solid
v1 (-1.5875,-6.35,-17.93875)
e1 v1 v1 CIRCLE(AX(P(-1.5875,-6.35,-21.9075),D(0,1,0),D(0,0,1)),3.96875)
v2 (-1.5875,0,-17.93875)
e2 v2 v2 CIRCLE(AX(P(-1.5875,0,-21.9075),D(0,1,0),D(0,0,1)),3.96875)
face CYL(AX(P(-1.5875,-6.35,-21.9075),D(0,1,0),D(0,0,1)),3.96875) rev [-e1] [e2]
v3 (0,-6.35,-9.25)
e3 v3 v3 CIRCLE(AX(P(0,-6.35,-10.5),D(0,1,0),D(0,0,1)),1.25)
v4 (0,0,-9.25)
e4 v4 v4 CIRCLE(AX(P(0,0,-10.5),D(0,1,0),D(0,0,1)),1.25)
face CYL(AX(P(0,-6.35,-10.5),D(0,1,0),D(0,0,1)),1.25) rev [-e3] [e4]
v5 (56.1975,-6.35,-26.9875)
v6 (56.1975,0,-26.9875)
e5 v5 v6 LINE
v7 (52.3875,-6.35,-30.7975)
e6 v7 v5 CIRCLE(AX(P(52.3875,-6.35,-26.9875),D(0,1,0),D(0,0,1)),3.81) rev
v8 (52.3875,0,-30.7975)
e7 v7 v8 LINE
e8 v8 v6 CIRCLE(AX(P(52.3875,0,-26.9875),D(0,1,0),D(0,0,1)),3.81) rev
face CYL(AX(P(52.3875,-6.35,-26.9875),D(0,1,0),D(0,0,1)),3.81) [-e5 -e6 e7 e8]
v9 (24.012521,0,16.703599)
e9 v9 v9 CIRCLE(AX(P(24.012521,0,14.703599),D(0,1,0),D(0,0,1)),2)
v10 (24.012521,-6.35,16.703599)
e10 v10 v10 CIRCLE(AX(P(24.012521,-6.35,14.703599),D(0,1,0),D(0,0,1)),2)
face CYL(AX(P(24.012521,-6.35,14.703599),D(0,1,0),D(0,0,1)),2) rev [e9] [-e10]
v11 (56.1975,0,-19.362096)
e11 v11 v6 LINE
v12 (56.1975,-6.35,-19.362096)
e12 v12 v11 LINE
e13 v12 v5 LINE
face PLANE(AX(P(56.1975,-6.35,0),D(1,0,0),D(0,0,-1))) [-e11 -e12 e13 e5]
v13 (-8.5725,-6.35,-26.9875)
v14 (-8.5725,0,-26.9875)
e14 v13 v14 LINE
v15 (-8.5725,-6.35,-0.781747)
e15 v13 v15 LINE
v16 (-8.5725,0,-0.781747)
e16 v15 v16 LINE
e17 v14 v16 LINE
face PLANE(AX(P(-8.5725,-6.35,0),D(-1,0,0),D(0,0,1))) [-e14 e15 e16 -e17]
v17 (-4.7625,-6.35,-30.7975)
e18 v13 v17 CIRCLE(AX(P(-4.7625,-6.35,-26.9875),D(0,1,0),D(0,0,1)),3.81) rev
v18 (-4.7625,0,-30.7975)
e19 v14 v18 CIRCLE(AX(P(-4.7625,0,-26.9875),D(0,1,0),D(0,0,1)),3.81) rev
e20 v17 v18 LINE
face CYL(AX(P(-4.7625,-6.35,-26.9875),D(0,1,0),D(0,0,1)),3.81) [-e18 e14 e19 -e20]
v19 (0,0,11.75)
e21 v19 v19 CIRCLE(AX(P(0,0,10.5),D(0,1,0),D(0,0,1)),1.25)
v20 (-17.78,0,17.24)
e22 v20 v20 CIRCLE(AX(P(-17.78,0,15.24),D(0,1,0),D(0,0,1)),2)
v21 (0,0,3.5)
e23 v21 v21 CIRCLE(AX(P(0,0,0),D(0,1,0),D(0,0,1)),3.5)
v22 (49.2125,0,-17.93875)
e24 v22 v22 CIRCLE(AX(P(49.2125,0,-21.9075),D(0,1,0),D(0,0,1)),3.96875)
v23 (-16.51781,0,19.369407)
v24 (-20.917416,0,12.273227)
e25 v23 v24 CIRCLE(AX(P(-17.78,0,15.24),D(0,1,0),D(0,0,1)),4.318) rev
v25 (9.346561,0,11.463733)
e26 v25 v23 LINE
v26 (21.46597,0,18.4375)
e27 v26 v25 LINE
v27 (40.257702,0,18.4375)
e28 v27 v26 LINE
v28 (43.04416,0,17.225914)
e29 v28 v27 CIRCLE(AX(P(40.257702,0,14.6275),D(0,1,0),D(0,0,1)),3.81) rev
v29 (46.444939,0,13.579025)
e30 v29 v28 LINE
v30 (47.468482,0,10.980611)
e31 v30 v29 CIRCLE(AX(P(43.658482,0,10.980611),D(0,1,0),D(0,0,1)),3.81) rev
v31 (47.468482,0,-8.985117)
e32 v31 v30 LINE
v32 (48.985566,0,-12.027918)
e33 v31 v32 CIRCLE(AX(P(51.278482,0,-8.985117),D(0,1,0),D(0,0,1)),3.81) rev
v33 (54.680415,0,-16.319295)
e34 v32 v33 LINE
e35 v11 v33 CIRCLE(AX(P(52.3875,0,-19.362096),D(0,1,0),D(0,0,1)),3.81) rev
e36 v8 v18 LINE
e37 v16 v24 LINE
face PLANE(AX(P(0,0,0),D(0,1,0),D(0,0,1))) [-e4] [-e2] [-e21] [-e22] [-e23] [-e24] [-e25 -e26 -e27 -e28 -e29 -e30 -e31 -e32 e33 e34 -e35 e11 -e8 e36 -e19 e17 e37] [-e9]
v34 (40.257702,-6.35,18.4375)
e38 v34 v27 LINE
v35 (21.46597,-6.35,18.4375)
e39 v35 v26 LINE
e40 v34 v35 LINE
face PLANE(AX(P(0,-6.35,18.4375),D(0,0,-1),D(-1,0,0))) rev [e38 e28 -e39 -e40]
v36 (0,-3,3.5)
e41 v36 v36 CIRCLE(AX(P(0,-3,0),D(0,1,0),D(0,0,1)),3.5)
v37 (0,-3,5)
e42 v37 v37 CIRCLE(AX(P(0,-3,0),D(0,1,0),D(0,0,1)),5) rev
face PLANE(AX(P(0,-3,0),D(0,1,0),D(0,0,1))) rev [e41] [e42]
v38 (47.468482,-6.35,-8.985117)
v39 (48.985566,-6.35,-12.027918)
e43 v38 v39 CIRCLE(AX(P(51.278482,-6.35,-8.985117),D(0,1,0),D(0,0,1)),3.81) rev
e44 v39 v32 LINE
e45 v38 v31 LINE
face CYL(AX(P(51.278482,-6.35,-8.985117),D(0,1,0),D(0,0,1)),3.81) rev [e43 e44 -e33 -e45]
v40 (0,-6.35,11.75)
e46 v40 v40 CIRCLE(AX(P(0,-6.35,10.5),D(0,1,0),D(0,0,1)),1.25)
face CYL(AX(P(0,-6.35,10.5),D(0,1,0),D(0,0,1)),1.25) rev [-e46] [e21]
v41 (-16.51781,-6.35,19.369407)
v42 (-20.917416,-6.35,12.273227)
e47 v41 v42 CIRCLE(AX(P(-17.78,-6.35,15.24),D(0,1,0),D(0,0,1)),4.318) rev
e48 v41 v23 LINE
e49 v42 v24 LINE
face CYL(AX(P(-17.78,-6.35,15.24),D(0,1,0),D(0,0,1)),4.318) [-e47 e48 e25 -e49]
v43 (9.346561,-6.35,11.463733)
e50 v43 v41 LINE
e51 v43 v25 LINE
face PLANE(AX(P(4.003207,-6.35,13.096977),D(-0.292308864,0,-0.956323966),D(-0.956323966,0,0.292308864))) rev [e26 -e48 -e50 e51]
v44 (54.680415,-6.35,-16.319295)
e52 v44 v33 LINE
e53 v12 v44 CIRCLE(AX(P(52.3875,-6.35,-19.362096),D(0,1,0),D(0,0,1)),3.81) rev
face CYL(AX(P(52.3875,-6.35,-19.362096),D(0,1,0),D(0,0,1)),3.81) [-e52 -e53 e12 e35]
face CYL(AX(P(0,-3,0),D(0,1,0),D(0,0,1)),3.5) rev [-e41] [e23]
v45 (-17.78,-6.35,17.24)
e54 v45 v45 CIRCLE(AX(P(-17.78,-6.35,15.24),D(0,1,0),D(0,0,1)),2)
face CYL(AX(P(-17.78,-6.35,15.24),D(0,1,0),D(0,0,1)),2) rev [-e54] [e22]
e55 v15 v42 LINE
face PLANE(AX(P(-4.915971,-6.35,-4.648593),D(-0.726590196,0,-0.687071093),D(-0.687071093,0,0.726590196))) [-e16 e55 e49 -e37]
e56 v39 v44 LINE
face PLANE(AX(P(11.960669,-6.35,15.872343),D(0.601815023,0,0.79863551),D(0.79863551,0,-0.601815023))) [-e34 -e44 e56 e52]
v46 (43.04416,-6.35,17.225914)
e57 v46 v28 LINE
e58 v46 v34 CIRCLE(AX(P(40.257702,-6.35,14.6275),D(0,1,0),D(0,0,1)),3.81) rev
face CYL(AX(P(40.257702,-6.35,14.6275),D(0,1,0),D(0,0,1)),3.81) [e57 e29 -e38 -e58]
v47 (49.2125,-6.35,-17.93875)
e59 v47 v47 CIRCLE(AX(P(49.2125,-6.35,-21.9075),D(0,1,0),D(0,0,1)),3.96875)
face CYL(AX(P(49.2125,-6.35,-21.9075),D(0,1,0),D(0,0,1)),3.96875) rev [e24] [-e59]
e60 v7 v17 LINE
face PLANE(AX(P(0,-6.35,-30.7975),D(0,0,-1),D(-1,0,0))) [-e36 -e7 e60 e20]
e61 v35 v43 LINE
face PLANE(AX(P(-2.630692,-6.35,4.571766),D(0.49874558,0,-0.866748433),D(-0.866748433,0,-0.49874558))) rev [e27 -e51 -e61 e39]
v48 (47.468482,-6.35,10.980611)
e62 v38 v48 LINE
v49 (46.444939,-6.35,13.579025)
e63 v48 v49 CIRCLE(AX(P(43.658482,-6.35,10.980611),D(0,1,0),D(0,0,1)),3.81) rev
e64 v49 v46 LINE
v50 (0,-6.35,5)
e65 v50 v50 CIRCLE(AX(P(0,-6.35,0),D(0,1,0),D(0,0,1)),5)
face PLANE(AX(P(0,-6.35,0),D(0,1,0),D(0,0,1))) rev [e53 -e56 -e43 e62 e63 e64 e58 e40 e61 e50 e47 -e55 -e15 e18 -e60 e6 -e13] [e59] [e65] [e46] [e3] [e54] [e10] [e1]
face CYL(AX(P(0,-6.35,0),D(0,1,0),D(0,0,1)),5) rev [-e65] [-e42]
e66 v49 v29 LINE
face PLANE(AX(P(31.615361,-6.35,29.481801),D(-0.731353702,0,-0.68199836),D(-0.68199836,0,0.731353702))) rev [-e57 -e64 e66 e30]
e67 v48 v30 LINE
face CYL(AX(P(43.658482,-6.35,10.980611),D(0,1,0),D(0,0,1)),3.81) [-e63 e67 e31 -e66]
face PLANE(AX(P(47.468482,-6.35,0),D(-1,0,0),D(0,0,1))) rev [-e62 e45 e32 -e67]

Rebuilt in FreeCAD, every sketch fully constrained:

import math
import FreeCAD as App
import Part
import Sketcher
from FreeCAD import Vector
Q = App.Units.Quantity

doc = App.newDocument("Part")
body = doc.addObject("PartDesign::Body", "Body")

# Sketch on XZ plane
sketch1 = body.newObject("Sketcher::SketchObject", "Sketch")
sketch1.AttachmentSupport = (doc.getObject("XZ_Plane"), [""])
sketch1.MapMode = "FlatFace"
sketch1.addGeometry([
    Part.LineSegment(Vector(21.5, 18.4, 0), Vector(40.3, 18.4, 0)),  # 0
    Part.ArcOfCircle(Part.Circle(Vector(40.3, 14.6, 0), Vector(0, 0, 1), 3.8), math.radians(43), math.radians(90)),  # 1
    Part.LineSegment(Vector(43, 17.2, 0), Vector(46.4, 13.6, 0)),  # 2
    Part.ArcOfCircle(Part.Circle(Vector(43.7, 11, 0), Vector(0, 0, 1), 3.8), math.radians(0), math.radians(43)),  # 3
    Part.LineSegment(Vector(47.5, 11, 0), Vector(47.5, -9, 0)),  # 4
    Part.ArcOfCircle(Part.Circle(Vector(51.3, -9, 0), Vector(0, 0, 1), 3.8), math.radians(-180), math.radians(-127)),  # 5
    Part.LineSegment(Vector(49, -12, 0), Vector(54.7, -16.3, 0)),  # 6
    Part.ArcOfCircle(Part.Circle(Vector(52.4, -19.4, 0), Vector(0, 0, 1), 3.8), math.radians(0), math.radians(53)),  # 7
    Part.LineSegment(Vector(56.2, -19.4, 0), Vector(56.2, -27, 0)),  # 8
    Part.ArcOfCircle(Part.Circle(Vector(52.4, -27, 0), Vector(0, 0, 1), 3.8), math.radians(-90), math.radians(0)),  # 9
    Part.LineSegment(Vector(52.4, -30.8, 0), Vector(-4.8, -30.8, 0)),  # 10
    Part.ArcOfCircle(Part.Circle(Vector(-4.8, -27, 0), Vector(0, 0, 1), 3.8), math.radians(-180), math.radians(-90)),  # 11
    Part.LineSegment(Vector(-8.6, -27, 0), Vector(-8.6, -0.8, 0)),  # 12
    Part.LineSegment(Vector(-8.6, -0.8, 0), Vector(-20.9, 12.3, 0)),  # 13
    Part.ArcOfCircle(Part.Circle(Vector(-17.8, 15.2, 0), Vector(0, 0, 1), 4.3), math.radians(73), math.radians(223)),  # 14
    Part.LineSegment(Vector(-16.5, 19.4, 0), Vector(9.3, 11.5, 0)),  # 15
    Part.LineSegment(Vector(9.3, 11.5, 0), Vector(21.5, 18.4, 0)),  # 16
    Part.Circle(Vector(-17.8, 15.2, 0), Vector(0, 0, 1), 2),  # 17
    Part.Circle(Vector(0, 10.5, 0), Vector(0, 0, 1), 1.2),  # 18
    Part.Circle(Vector(0, 0, 0), Vector(0, 0, 1), 5),  # 19
    Part.Circle(Vector(24, 14.7, 0), Vector(0, 0, 1), 2),  # 20
    Part.Circle(Vector(0, -10.5, 0), Vector(0, 0, 1), 1.2),  # 21
    Part.Circle(Vector(-1.6, -21.9, 0), Vector(0, 0, 1), 4),  # 22
    Part.Circle(Vector(49.2, -21.9, 0), Vector(0, 0, 1), 4),  # 23
], False)
sketch1.addConstraint([
    Sketcher.Constraint("Tangent", 0, 2, 1, 2),
    Sketcher.Constraint("Tangent", 1, 1, 2, 1),
    Sketcher.Constraint("Tangent", 2, 2, 3, 2),
    Sketcher.Constraint("Tangent", 3, 1, 4, 1),
    Sketcher.Constraint("Tangent", 4, 2, 5, 1),
    Sketcher.Constraint("Tangent", 5, 2, 6, 1),
    Sketcher.Constraint("Tangent", 6, 2, 7, 2),
    Sketcher.Constraint("Tangent", 7, 1, 8, 1),
    Sketcher.Constraint("Tangent", 8, 2, 9, 2),
    Sketcher.Constraint("Tangent", 9, 1, 10, 1),
    Sketcher.Constraint("Tangent", 10, 2, 11, 2),
    Sketcher.Constraint("Tangent", 11, 1, 12, 1),
    Sketcher.Constraint("Coincident", 12, 2, 13, 1),
    Sketcher.Constraint("Tangent", 13, 2, 14, 2),
    Sketcher.Constraint("Tangent", 14, 1, 15, 1),
    Sketcher.Constraint("Coincident", 15, 2, 16, 1),
    Sketcher.Constraint("Coincident", 16, 2, 0, 1),
    Sketcher.Constraint("Horizontal", 0),
    Sketcher.Constraint("Vertical", 4),
    Sketcher.Constraint("Vertical", 8),
    Sketcher.Constraint("Horizontal", 10),
    Sketcher.Constraint("Vertical", 12),
    Sketcher.Constraint("Coincident", 19, 3, -1, 1),
    Sketcher.Constraint("Coincident", 17, 3, 14, 3),
    Sketcher.Constraint("Equal", 1, 3),
    Sketcher.Constraint("Equal", 3, 5),
    Sketcher.Constraint("Equal", 5, 7),
    Sketcher.Constraint("Equal", 7, 9),
    Sketcher.Constraint("Equal", 9, 11),
    Sketcher.Constraint("Equal", 17, 20),
    Sketcher.Constraint("Equal", 18, 21),
    Sketcher.Constraint("Equal", 22, 23),
    Sketcher.Constraint("Symmetric", 18, 3, 21, 3, -1, 1),
    Sketcher.Constraint("PointOnObject", 18, 3, -2),
    Sketcher.Constraint("Horizontal", 22, 3, 23, 3),
    Sketcher.Constraint("Diameter", 17, Q("4 mm")),
    Sketcher.Constraint("Diameter", 19, Q("10 mm")),
    Sketcher.Constraint("Diameter", 18, Q("2.5 mm")),
    Sketcher.Constraint("Angle", 2, Q("-47 deg")),
    Sketcher.Constraint("Angle", 6, Q("-37 deg")),
    Sketcher.Constraint("Radius", 1, Q("3.81 mm")),
    Sketcher.Constraint("Radius", 14, Q("4.318 mm")),
    Sketcher.Constraint("DistanceY", 21, 3, 18, 3, Q("21 mm")),
    Sketcher.Constraint("Diameter", 22, Q("7.9375 mm")),
    Sketcher.Constraint("DistanceX", 10, 2, 10, 1, Q("57.15 mm")),
    Sketcher.Constraint("DistanceX", 14, 3, -1, 1, Q("17.78 mm")),
    Sketcher.Constraint("DistanceY", -1, 1, 14, 3, Q("15.24 mm")),
    Sketcher.Constraint("DistanceY", 11, 3, 22, 3, Q("5.08 mm")),
    Sketcher.Constraint("DistanceY", 9, 3, 1, 3, Q("41.615 mm")),
    Sketcher.Constraint("DistanceX", 11, 3, 22, 3, Q("3.175 mm")),
    Sketcher.Constraint("DistanceX", 23, 3, 7, 3, Q("3.175 mm")),
    Sketcher.Constraint("DistanceY", -1, 1, 1, 3, Q("14.6275 mm")),
    Sketcher.Constraint("DistanceX", -1, 1, 7, 3, Q("52.3875 mm")),
    Sketcher.Constraint("DistanceY", -1, 1, 20, 3, Q("14.703599 mm")),
    Sketcher.Constraint("Distance", 2, Q("4.986492 mm")),
    Sketcher.Constraint("Distance", 13, Q("17.967451 mm")),
    Sketcher.Constraint("DistanceX", 0, 1, 0, 2, Q("18.791733 mm")),
    Sketcher.Constraint("DistanceY", 4, 2, 4, 1, Q("19.965728 mm")),
    Sketcher.Constraint("DistanceY", 8, 2, 8, 1, Q("7.625404 mm")),
    Sketcher.Constraint("DistanceX", -1, 1, 20, 3, Q("24.012521 mm")),
    Sketcher.Constraint("DistanceX", 14, 1, -1, 1, Q("16.51781 mm")),
    Sketcher.Constraint("DistanceX", -1, 1, 15, 2, Q("9.346561 mm")),
])
pad1 = body.newObject("PartDesign::Pad", "Pad")
pad1.Profile = sketch1
pad1.Length = 6.35

# Sketch on XZ plane
sketch2 = body.newObject("Sketcher::SketchObject", "Sketch001")
sketch2.AttachmentSupport = (doc.getObject("XZ_Plane"), [""])
sketch2.MapMode = "FlatFace"
sketch2.addGeometry([
    Part.Circle(Vector(0, 0, 0), Vector(0, 0, 1), 5),
    Part.Circle(Vector(0, 0, 0), Vector(0, 0, 1), 3.5),
], False)
sketch2.addConstraint([
    Sketcher.Constraint("Coincident", 0, 3, -1, 1),
    Sketcher.Constraint("Coincident", 1, 3, -1, 1),
    Sketcher.Constraint("Diameter", 0, Q("10 mm")),
    Sketcher.Constraint("Diameter", 1, Q("7 mm")),
])
pad2 = body.newObject("PartDesign::Pad", "Pad001")
pad2.Profile = sketch2
pad2.Length = 3

doc.recompute()
